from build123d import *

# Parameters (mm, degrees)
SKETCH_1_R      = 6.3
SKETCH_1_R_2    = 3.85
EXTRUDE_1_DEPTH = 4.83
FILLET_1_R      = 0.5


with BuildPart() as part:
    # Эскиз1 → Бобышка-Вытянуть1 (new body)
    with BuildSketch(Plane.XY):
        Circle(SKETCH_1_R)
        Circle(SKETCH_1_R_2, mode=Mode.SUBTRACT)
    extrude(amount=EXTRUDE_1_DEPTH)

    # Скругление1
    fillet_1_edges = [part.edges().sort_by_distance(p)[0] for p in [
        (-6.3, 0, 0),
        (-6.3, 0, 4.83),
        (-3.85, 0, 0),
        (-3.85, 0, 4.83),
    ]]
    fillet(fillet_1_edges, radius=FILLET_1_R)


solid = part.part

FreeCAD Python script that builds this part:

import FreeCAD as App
import Part
import Sketcher

V = App.Vector
Q = App.Units.Quantity


def edges_at(feature, points):
    """Names of the edges that pass closest to the given points."""
    edges = feature.Shape.Edges
    near = lambda p: min(range(len(edges)), key=lambda i: edges[i].distToShape(Part.Vertex(*p))[0])
    return sorted({f"Edge{near(p) + 1}" for p in points})

doc = App.newDocument("Part")
body = doc.addObject("PartDesign::Body", "Body")

# Sketch on XY plane
sketch1 = body.newObject("Sketcher::SketchObject", "Sketch")
sketch1.AttachmentSupport = (doc.getObject("XY_Plane"), [""])
sketch1.MapMode = "FlatFace"
sketch1.addGeometry([
    Part.Circle(V(0, 0, 0), V(0, 0, 1), 6.3),
    Part.Circle(V(0, 0, 0), V(0, 0, 1), 3.9),
], False)
sketch1.addConstraint([
    Sketcher.Constraint("Coincident", 0, 3, -1, 1),
    Sketcher.Constraint("Coincident", 1, 3, -1, 1),
    Sketcher.Constraint("Diameter", 0, Q("12.6 mm")),
    Sketcher.Constraint("Diameter", 1, Q("7.7 mm")),
])
pad1 = body.newObject("PartDesign::Pad", "Pad")
pad1.Profile = sketch1
pad1.Length = 4.83
doc.recompute()

fillet = body.newObject("PartDesign::Fillet", "Fillet")
fillet.Base = (pad1, edges_at(pad1, [
    (-6.3, 0, 0),
    (-6.3, 0, 4.83),
    (-3.85, 0, 0),
    (-3.85, 0, 4.83),
]))
fillet.Radius = 0.5

doc.recompute()
